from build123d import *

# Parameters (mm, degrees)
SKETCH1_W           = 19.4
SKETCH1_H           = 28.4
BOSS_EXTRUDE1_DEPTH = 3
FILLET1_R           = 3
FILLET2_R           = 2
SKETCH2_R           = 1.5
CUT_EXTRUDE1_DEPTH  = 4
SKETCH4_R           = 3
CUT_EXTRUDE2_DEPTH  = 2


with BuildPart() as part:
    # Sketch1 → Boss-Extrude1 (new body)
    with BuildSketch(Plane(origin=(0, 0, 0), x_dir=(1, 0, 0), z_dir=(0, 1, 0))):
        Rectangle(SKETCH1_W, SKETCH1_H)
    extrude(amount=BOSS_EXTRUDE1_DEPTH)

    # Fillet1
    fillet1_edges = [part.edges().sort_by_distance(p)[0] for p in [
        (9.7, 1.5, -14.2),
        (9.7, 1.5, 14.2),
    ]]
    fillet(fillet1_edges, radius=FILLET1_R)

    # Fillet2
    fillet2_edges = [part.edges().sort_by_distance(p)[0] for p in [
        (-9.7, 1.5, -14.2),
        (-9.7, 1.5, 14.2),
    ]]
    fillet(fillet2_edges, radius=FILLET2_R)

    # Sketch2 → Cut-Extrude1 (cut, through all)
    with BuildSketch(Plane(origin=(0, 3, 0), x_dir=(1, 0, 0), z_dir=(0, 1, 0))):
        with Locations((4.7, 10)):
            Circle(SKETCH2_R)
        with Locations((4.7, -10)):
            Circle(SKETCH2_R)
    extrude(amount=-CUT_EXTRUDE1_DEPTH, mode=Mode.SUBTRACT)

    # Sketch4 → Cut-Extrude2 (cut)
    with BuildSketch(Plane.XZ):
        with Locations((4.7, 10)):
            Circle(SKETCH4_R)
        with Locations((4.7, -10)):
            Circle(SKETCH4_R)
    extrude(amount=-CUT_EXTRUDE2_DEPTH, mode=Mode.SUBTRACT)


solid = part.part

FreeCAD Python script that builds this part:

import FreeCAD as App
import Part
import Sketcher

V = App.Vector


def edges_at(feature, points):
    """Names of the edges that pass closest to the given points."""
    edges = feature.Shape.Edges
    near = lambda p: min(range(len(edges)), key=lambda i: edges[i].distToShape(Part.Vertex(*p))[0])
    return sorted({f"Edge{near(p) + 1}" for p in points})


def add_polygon(sketch, points):
    """Adds a closed chain of lines whose ends are joined by coincident constraints."""
    first, n = sketch.GeometryCount, len(points)
    for a, b in zip(points, points[1:] + points[:1]):
        sketch.addGeometry(Part.LineSegment(App.Vector(*a, 0), App.Vector(*b, 0)), False)
    for i in range(n):
        sketch.addConstraint(Sketcher.Constraint("Coincident", first + i, 2, first + (i + 1) % n, 1))

doc = App.newDocument("Part")
body = doc.addObject("PartDesign::Body", "Body")

# Sketch on XZ plane
sketch1 = body.newObject("Sketcher::SketchObject", "Sketch")
sketch1.AttachmentSupport = (doc.getObject("XZ_Plane"), [""])
sketch1.MapMode = "FlatFace"
add_polygon(sketch1, [(-9.7, -14.2), (-9.7, 14.2), (9.7, 14.2), (9.7, -14.2)])  # lines 0-3
sketch1.addConstraint(Sketcher.Constraint("Vertical", 0))
sketch1.addConstraint(Sketcher.Constraint("Horizontal", 1))
sketch1.addConstraint(Sketcher.Constraint("Vertical", 2))
sketch1.addConstraint(Sketcher.Constraint("Horizontal", 3))
sketch1.addConstraint(Sketcher.Constraint("Symmetric", 0, 2, 2, 2, -1, 1))
sketch1.addConstraint(Sketcher.Constraint("DistanceX", 1, 1, 1, 2, 19.4))
sketch1.addConstraint(Sketcher.Constraint("DistanceY", 0, 1, 0, 2, 28.4))
pad1 = body.newObject("PartDesign::Pad", "Pad")
pad1.Profile = sketch1
pad1.Length = 3
pad1.Reversed = True
doc.recompute()

fillet = body.newObject("PartDesign::Fillet", "Fillet")
fillet.Base = (pad1, edges_at(pad1, [(9.7, 1.5, -14.2), (9.7, 1.5, 14.2)]))
fillet.Radius = 3
doc.recompute()

fillet2 = body.newObject("PartDesign::Fillet", "Fillet001")
fillet2.Base = (fillet, edges_at(fillet, [(-9.7, 1.5, -14.2), (-9.7, 1.5, 14.2)]))
fillet2.Radius = 2

# Sketch on XZ plane
sketch2 = body.newObject("Sketcher::SketchObject", "Sketch001")
sketch2.AttachmentSupport = (doc.getObject("XZ_Plane"), [""])
sketch2.MapMode = "FlatFace"
sketch2.AttachmentOffset = App.Placement(V(0, 0, -3), App.Rotation())
sketch2.addGeometry(Part.Circle(V(4.7, -10, 0), V(0, 0, 1), 1.5), False)
sketch2.addGeometry(Part.Circle(V(4.7, 10, 0), V(0, 0, 1), 1.5), False)
sketch2.addConstraint(Sketcher.Constraint("Equal", 0, 1))
sketch2.addConstraint(Sketcher.Constraint("Symmetric", 0, 3, 1, 3, -1))
sketch2.addConstraint(Sketcher.Constraint("Diameter", 0, 3.0))
sketch2.addConstraint(Sketcher.Constraint("DistanceY", 0, 3, -1, 1, 10.0))
sketch2.addConstraint(Sketcher.Constraint("DistanceX", -1, 1, 0, 3, 4.7))
pocket1 = body.newObject("PartDesign::Pocket", "Pocket")
pocket1.Profile = sketch2
pocket1.Type = "ThroughAll"
pocket1.Reversed = True

# Sketch on XZ plane
sketch3 = body.newObject("Sketcher::SketchObject", "Sketch002")
sketch3.AttachmentSupport = (doc.getObject("XZ_Plane"), [""])
sketch3.MapMode = "FlatFace"
sketch3.addGeometry(Part.Circle(V(4.7, 10, 0), V(0, 0, 1), 3), False)
sketch3.addGeometry(Part.Circle(V(4.7, -10, 0), V(0, 0, 1), 3), False)
sketch3.addConstraint(Sketcher.Constraint("Equal", 0, 1))
sketch3.addConstraint(Sketcher.Constraint("Symmetric", 0, 3, 1, 3, -1))
sketch3.addConstraint(Sketcher.Constraint("Diameter", 0, 6.0))
sketch3.addConstraint(Sketcher.Constraint("DistanceY", -1, 1, 0, 3, 10.0))
sketch3.addConstraint(Sketcher.Constraint("DistanceX", -1, 1, 0, 3, 4.7))
pocket2 = body.newObject("PartDesign::Pocket", "Pocket001")
pocket2.Profile = sketch3
pocket2.Length = 2

doc.recompute()
